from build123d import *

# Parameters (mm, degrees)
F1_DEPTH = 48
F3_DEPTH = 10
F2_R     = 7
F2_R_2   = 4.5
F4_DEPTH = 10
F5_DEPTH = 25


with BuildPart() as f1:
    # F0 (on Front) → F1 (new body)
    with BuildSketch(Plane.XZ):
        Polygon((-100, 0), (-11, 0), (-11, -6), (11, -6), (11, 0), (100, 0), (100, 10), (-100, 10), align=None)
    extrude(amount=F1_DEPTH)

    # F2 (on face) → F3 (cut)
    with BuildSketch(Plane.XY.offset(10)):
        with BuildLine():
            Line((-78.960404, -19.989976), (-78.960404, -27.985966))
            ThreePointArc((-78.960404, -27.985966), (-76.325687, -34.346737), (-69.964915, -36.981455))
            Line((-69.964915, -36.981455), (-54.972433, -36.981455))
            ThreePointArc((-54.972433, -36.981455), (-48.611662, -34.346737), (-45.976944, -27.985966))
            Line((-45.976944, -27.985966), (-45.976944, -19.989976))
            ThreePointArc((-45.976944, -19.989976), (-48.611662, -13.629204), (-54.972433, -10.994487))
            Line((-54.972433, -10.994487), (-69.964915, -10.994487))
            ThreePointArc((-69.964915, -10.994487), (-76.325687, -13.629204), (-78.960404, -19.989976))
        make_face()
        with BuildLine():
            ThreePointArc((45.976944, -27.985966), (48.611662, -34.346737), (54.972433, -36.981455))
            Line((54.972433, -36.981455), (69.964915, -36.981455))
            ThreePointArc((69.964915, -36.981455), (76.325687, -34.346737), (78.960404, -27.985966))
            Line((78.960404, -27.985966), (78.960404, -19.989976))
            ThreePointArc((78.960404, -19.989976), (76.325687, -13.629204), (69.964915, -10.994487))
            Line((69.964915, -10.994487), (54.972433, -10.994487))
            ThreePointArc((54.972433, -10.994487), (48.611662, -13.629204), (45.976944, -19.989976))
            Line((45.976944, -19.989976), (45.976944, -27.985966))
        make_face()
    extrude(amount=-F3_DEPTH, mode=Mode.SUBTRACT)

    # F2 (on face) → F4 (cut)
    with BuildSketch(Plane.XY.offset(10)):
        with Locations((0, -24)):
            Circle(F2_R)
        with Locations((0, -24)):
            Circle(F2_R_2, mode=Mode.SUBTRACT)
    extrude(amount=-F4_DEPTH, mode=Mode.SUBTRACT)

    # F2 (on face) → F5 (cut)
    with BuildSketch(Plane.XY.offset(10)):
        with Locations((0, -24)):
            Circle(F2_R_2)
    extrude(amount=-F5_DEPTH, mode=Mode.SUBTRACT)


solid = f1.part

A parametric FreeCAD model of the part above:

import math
import FreeCAD as App
import Part
import Sketcher
from FreeCAD import Vector

doc = App.newDocument("Part")
body = doc.addObject("PartDesign::Body", "Body")

# Sketch on XZ plane
sketch1 = doc.addObject("Sketcher::SketchObject", "Sketch")
body.addObject(sketch1)
sketch1.AttachmentSupport = (doc.XZ_Plane, [""])
sketch1.MapMode = "FlatFace"
sketch1.addGeometry(Part.LineSegment(Vector(-100, 0, 0), Vector(-11, 0, 0)), False)
sketch1.addGeometry(Part.LineSegment(Vector(-11, 0, 0), Vector(-11, -6, 0)), False)
sketch1.addGeometry(Part.LineSegment(Vector(-11, -6, 0), Vector(11, -6, 0)), False)
sketch1.addGeometry(Part.LineSegment(Vector(11, -6, 0), Vector(11, 0, 0)), False)
sketch1.addGeometry(Part.LineSegment(Vector(11, 0, 0), Vector(100, 0, 0)), False)
sketch1.addGeometry(Part.LineSegment(Vector(100, 0, 0), Vector(100, 10, 0)), False)
sketch1.addGeometry(Part.LineSegment(Vector(100, 10, 0), Vector(-100, 10, 0)), False)
sketch1.addGeometry(Part.LineSegment(Vector(-100, 10, 0), Vector(-100, 0, 0)), False)
sketch1.addConstraint(Sketcher.Constraint("Coincident", 0, 2, 1, 1))
sketch1.addConstraint(Sketcher.Constraint("Coincident", 1, 2, 2, 1))
sketch1.addConstraint(Sketcher.Constraint("Coincident", 2, 2, 3, 1))
sketch1.addConstraint(Sketcher.Constraint("Coincident", 3, 2, 4, 1))
sketch1.addConstraint(Sketcher.Constraint("Coincident", 4, 2, 5, 1))
sketch1.addConstraint(Sketcher.Constraint("Coincident", 5, 2, 6, 1))
sketch1.addConstraint(Sketcher.Constraint("Coincident", 6, 2, 7, 1))
sketch1.addConstraint(Sketcher.Constraint("Coincident", 7, 2, 0, 1))
sketch1.addConstraint(Sketcher.Constraint("Horizontal", 0))
sketch1.addConstraint(Sketcher.Constraint("Vertical", 1))
sketch1.addConstraint(Sketcher.Constraint("Horizontal", 2))
sketch1.addConstraint(Sketcher.Constraint("Vertical", 3))
sketch1.addConstraint(Sketcher.Constraint("Horizontal", 4))
sketch1.addConstraint(Sketcher.Constraint("Vertical", 5))
sketch1.addConstraint(Sketcher.Constraint("Horizontal", 6))
sketch1.addConstraint(Sketcher.Constraint("Vertical", 7))
sketch1.addConstraint(Sketcher.Constraint("Symmetric", 0, 2, 3, 2, -1, 1))
sketch1.addConstraint(Sketcher.Constraint("Symmetric", 4, 2, 7, 2, -2))
sketch1.addConstraint(Sketcher.Constraint("DistanceX", 0, 1, 0, 2, 89.0))
sketch1.addConstraint(Sketcher.Constraint("DistanceX", 2, 1, 2, 2, 22.0))
sketch1.addConstraint(Sketcher.Constraint("DistanceY", 1, 2, 1, 1, 6.0))
sketch1.addConstraint(Sketcher.Constraint("DistanceY", 5, 1, 5, 2, 10.0))
pad1 = doc.addObject("PartDesign::Pad", "Pad")
body.addObject(pad1)
pad1.Profile = sketch1
pad1.Length = 48

# Sketch on XY plane
sketch2 = doc.addObject("Sketcher::SketchObject", "Sketch001")
body.addObject(sketch2)
sketch2.AttachmentSupport = (doc.XY_Plane, [""])
sketch2.MapMode = "FlatFace"
sketch2.AttachmentOffset = App.Placement(Vector(0, 0, 10), App.Rotation())
sketch2.addGeometry(Part.LineSegment(Vector(-79, -20, 0), Vector(-79, -28, 0)), False)
sketch2.addGeometry(Part.ArcOfCircle(Part.Circle(Vector(-70, -28, 0), Vector(0, 0, 1), 9), math.radians(180), math.radians(270)), False)
sketch2.addGeometry(Part.LineSegment(Vector(-70, -37, 0), Vector(-55, -37, 0)), False)
sketch2.addGeometry(Part.ArcOfCircle(Part.Circle(Vector(-55, -28, 0), Vector(0, 0, 1), 9), math.radians(-90), math.radians(0)), False)
sketch2.addGeometry(Part.LineSegment(Vector(-46, -28, 0), Vector(-46, -20, 0)), False)
sketch2.addGeometry(Part.ArcOfCircle(Part.Circle(Vector(-55, -20, 0), Vector(0, 0, 1), 9), math.radians(0), math.radians(90)), False)
sketch2.addGeometry(Part.LineSegment(Vector(-55, -11, 0), Vector(-70, -11, 0)), False)
sketch2.addGeometry(Part.ArcOfCircle(Part.Circle(Vector(-70, -20, 0), Vector(0, 0, 1), 9), math.radians(90), math.radians(180)), False)
sketch2.addGeometry(Part.ArcOfCircle(Part.Circle(Vector(55, -28, 0), Vector(0, 0, 1), 9), math.radians(-180), math.radians(-90)), False)
sketch2.addGeometry(Part.LineSegment(Vector(55, -37, 0), Vector(70, -37, 0)), False)
sketch2.addGeometry(Part.ArcOfCircle(Part.Circle(Vector(70, -28, 0), Vector(0, 0, 1), 9), math.radians(-90), math.radians(0)), False)
sketch2.addGeometry(Part.LineSegment(Vector(79, -28, 0), Vector(79, -20, 0)), False)
sketch2.addGeometry(Part.ArcOfCircle(Part.Circle(Vector(70, -20, 0), Vector(0, 0, 1), 9), math.radians(0), math.radians(90)), False)
sketch2.addGeometry(Part.LineSegment(Vector(70, -11, 0), Vector(55, -11, 0)), False)
sketch2.addGeometry(Part.ArcOfCircle(Part.Circle(Vector(55, -20, 0), Vector(0, 0, 1), 9), math.radians(90), math.radians(180)), False)
sketch2.addGeometry(Part.LineSegment(Vector(46, -20, 0), Vector(46, -28, 0)), False)
sketch2.addConstraint(Sketcher.Constraint("Tangent", 0, 2, 1, 1))
sketch2.addConstraint(Sketcher.Constraint("Tangent", 1, 2, 2, 1))
sketch2.addConstraint(Sketcher.Constraint("Tangent", 2, 2, 3, 1))
sketch2.addConstraint(Sketcher.Constraint("Tangent", 3, 2, 4, 1))
sketch2.addConstraint(Sketcher.Constraint("Tangent", 4, 2, 5, 1))
sketch2.addConstraint(Sketcher.Constraint("Tangent", 5, 2, 6, 1))
sketch2.addConstraint(Sketcher.Constraint("Tangent", 6, 2, 7, 1))
sketch2.addConstraint(Sketcher.Constraint("Tangent", 7, 2, 0, 1))
sketch2.addConstraint(Sketcher.Constraint("Tangent", 8, 2, 9, 1))
sketch2.addConstraint(Sketcher.Constraint("Tangent", 9, 2, 10, 1))
sketch2.addConstraint(Sketcher.Constraint("Tangent", 10, 2, 11, 1))
sketch2.addConstraint(Sketcher.Constraint("Tangent", 11, 2, 12, 1))
sketch2.addConstraint(Sketcher.Constraint("Tangent", 12, 2, 13, 1))
sketch2.addConstraint(Sketcher.Constraint("Tangent", 13, 2, 14, 1))
sketch2.addConstraint(Sketcher.Constraint("Tangent", 14, 2, 15, 1))
sketch2.addConstraint(Sketcher.Constraint("Tangent", 15, 2, 8, 1))
sketch2.addConstraint(Sketcher.Constraint("Vertical", 0))
sketch2.addConstraint(Sketcher.Constraint("Horizontal", 2))
sketch2.addConstraint(Sketcher.Constraint("Vertical", 4))
sketch2.addConstraint(Sketcher.Constraint("Horizontal", 6))
sketch2.addConstraint(Sketcher.Constraint("Horizontal", 9))
sketch2.addConstraint(Sketcher.Constraint("Vertical", 11))
sketch2.addConstraint(Sketcher.Constraint("Horizontal", 13))
sketch2.addConstraint(Sketcher.Constraint("Vertical", 15))
sketch2.addConstraint(Sketcher.Constraint("Equal", 1, 3))
sketch2.addConstraint(Sketcher.Constraint("Equal", 3, 5))
sketch2.addConstraint(Sketcher.Constraint("Equal", 5, 7))
sketch2.addConstraint(Sketcher.Constraint("Equal", 5, 8))
sketch2.addConstraint(Sketcher.Constraint("Equal", 8, 10))
sketch2.addConstraint(Sketcher.Constraint("Equal", 10, 12))
sketch2.addConstraint(Sketcher.Constraint("Equal", 12, 14))
sketch2.addConstraint(Sketcher.Constraint("Symmetric", 3, 3, 8, 3, -2))
sketch2.addConstraint(Sketcher.Constraint("Symmetric", 7, 3, 12, 3, -2))
sketch2.addConstraint(Sketcher.Constraint("Radius", 1, 8.995488))
sketch2.addConstraint(Sketcher.Constraint("DistanceY", 0, 2, 0, 1, 7.99599))
sketch2.addConstraint(Sketcher.Constraint("DistanceX", 2, 1, 2, 2, 14.992482))
sketch2.addConstraint(Sketcher.Constraint("DistanceX", 1, 3, 8, 3, 124.93735))
sketch2.addConstraint(Sketcher.Constraint("DistanceY", 1, 3, -1, 1, 27.985967))
pocket1 = doc.addObject("PartDesign::Pocket", "Pocket")
body.addObject(pocket1)
pocket1.Profile = sketch2
pocket1.Length = 10

# Sketch on XY plane
sketch3 = doc.addObject("Sketcher::SketchObject", "Sketch002")
body.addObject(sketch3)
sketch3.AttachmentSupport = (doc.XY_Plane, [""])
sketch3.MapMode = "FlatFace"
sketch3.AttachmentOffset = App.Placement(Vector(0, 0, 10), App.Rotation())
sketch3.addGeometry(Part.Circle(Vector(0, -24, 0), Vector(0, 0, 1), 7), False)
sketch3.addGeometry(Part.Circle(Vector(0, -24, 0), Vector(0, 0, 1), 4.5), False)
sketch3.addConstraint(Sketcher.Constraint("Coincident", 1, 3, 0, 3))
sketch3.addConstraint(Sketcher.Constraint("PointOnObject", 0, 3, -2))
sketch3.addConstraint(Sketcher.Constraint("Diameter", 0, 14.0))
sketch3.addConstraint(Sketcher.Constraint("Diameter", 1, 9.0))
sketch3.addConstraint(Sketcher.Constraint("DistanceY", 0, 3, -1, 1, 24.0))
pocket2 = doc.addObject("PartDesign::Pocket", "Pocket001")
body.addObject(pocket2)
pocket2.Profile = sketch3
pocket2.Length = 10

# Sketch on XY plane
sketch4 = doc.addObject("Sketcher::SketchObject", "Sketch003")
body.addObject(sketch4)
sketch4.AttachmentSupport = (doc.XY_Plane, [""])
sketch4.MapMode = "FlatFace"
sketch4.AttachmentOffset = App.Placement(Vector(0, 0, 10), App.Rotation())
sketch4.addGeometry(Part.Circle(Vector(0, -24, 0), Vector(0, 0, 1), 4.5), False)
sketch4.addConstraint(Sketcher.Constraint("PointOnObject", 0, 3, -2))
sketch4.addConstraint(Sketcher.Constraint("Diameter", 0, 9.0))
sketch4.addConstraint(Sketcher.Constraint("DistanceY", 0, 3, -1, 1, 24.0))
pocket3 = doc.addObject("PartDesign::Pocket", "Pocket002")
body.addObject(pocket3)
pocket3.Profile = sketch4
pocket3.Length = 25

doc.recompute()
